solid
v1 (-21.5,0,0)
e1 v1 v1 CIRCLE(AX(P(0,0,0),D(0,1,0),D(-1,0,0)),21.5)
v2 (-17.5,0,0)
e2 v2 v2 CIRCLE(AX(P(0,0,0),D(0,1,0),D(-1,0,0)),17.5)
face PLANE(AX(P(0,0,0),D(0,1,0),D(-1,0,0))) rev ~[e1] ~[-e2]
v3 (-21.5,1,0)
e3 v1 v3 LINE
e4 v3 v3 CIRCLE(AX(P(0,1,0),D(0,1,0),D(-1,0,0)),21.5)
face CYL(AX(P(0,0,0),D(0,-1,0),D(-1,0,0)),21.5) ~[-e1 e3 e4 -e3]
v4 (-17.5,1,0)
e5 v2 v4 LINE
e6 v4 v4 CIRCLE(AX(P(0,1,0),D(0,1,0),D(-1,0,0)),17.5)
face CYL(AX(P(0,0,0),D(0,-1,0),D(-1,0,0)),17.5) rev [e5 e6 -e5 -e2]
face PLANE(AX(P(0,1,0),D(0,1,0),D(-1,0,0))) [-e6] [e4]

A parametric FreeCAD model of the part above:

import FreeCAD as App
import Part
import Sketcher
from FreeCAD import Vector
Q = App.Units.Quantity

doc = App.newDocument("Part")
body = doc.addObject("PartDesign::Body", "Body")

# Sketch on XZ plane
sketch1 = body.newObject("Sketcher::SketchObject", "Sketch")
sketch1.AttachmentSupport = (doc.getObject("XZ_Plane"), [""])
sketch1.MapMode = "FlatFace"
sketch1.addGeometry([
    Part.Circle(Vector(0, 0, 0), Vector(0, 0, 1), 22),
    Part.Circle(Vector(0, 0, 0), Vector(0, 0, 1), 18),
], False)
sketch1.addConstraint([
    Sketcher.Constraint("Coincident", 0, 3, -1, 1),
    Sketcher.Constraint("Coincident", 1, 3, -1, 1),
    Sketcher.Constraint("Diameter", 0, Q("43 mm")),
    Sketcher.Constraint("Diameter", 1, Q("35 mm")),
])
pad1 = body.newObject("PartDesign::Pad", "Pad")
pad1.Profile = sketch1
pad1.Length = 1
pad1.Reversed = True

doc.recompute()
